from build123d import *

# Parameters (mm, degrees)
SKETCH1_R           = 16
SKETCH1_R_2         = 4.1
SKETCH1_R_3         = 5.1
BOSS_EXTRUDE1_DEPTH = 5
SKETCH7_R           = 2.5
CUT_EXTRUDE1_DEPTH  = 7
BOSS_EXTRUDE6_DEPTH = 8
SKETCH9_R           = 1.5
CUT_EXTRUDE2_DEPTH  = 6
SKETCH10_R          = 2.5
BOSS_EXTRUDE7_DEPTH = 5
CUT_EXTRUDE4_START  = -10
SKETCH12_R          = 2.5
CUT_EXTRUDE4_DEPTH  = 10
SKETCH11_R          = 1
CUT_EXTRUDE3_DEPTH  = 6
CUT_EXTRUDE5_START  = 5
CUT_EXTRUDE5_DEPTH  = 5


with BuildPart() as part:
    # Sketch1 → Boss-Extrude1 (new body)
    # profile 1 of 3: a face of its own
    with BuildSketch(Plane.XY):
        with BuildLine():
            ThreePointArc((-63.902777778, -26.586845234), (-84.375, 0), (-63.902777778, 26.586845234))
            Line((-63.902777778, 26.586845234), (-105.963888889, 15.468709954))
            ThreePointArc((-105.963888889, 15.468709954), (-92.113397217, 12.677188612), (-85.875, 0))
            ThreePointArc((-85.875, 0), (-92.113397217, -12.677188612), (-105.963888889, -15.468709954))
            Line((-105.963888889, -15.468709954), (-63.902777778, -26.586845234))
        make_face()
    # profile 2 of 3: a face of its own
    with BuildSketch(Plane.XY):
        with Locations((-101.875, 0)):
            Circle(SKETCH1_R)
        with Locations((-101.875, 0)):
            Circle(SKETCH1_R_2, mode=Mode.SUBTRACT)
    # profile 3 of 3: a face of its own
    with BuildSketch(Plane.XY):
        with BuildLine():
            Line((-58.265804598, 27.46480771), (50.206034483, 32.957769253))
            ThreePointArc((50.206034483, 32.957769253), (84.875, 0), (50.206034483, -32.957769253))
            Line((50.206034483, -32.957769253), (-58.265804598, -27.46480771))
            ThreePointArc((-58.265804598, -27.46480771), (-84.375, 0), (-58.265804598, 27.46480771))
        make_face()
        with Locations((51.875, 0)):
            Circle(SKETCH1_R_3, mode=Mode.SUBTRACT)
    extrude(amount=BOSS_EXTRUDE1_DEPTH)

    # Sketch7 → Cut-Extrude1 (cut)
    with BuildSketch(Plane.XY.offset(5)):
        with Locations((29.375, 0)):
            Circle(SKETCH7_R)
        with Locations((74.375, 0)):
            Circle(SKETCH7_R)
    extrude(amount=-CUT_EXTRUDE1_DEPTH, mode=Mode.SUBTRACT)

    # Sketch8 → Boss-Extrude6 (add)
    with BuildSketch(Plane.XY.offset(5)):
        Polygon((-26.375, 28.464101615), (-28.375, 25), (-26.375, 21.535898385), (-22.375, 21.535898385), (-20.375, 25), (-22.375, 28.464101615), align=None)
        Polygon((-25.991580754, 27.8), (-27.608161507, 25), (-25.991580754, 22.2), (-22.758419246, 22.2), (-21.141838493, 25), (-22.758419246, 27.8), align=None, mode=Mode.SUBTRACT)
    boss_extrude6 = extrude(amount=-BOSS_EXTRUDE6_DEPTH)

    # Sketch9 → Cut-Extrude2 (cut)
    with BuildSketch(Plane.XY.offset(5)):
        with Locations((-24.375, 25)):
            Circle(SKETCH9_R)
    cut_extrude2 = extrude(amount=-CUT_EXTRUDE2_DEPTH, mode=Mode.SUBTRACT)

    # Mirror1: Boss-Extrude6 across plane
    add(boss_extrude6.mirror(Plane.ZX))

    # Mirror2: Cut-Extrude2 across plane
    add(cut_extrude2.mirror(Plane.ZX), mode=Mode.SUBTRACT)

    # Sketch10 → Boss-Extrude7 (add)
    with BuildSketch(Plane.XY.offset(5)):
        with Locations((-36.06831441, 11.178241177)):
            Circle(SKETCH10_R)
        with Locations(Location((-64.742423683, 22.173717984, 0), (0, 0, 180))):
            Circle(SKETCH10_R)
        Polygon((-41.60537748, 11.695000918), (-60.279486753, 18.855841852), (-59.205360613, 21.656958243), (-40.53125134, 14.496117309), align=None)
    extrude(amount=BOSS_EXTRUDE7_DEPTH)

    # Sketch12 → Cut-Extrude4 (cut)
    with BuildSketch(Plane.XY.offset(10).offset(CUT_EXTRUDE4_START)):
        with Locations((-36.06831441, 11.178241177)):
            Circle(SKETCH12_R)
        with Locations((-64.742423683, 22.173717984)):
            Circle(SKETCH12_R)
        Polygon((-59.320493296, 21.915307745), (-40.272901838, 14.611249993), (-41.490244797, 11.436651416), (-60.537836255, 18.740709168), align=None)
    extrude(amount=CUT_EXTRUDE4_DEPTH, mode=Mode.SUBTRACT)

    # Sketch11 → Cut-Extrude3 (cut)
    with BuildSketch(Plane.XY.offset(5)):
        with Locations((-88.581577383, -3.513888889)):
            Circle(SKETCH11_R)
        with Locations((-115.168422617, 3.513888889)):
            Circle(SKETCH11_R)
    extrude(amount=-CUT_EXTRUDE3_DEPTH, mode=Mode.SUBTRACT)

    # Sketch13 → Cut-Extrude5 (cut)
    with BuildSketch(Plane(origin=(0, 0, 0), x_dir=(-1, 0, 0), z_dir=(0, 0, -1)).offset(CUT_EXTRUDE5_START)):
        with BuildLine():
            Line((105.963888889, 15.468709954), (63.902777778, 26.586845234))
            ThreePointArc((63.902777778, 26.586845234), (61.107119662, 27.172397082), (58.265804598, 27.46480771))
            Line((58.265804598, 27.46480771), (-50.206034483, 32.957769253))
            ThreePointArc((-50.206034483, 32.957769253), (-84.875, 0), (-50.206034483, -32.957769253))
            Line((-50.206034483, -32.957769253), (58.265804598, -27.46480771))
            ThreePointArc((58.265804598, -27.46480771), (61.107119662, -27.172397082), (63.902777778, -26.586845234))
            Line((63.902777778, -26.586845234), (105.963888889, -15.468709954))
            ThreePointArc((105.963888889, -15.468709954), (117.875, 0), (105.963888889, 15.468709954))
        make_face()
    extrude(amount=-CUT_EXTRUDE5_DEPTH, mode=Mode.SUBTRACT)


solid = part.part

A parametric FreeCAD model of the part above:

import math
import FreeCAD as App
import Part
import Sketcher

V = App.Vector
Q = App.Units.Quantity

doc = App.newDocument("Part")
body = doc.addObject("PartDesign::Body", "Body")

sketch1 = body.newObject("Sketcher::SketchObject", "Sketch")
sketch1.AttachmentSupport = (doc.getObject("XY_Plane"), [""])
sketch1.MapMode = "FlatFace"
sketch1.addGeometry([
    Part.LineSegment(V(-63.902778, 26.586845, 0), V(-105.963889, 15.46871, 0)),
    Part.ArcOfCircle(Part.Circle(V(-101.875, 0, 0), V(0, 0, 1), 16), math.radians(104.806507), math.radians(255.193493)),
    Part.LineSegment(V(-105.963889, -15.46871, 0), V(-63.902778, -26.586845, 0)),
    Part.ArcOfCircle(Part.Circle(V(-56.875, 0, 0), V(0, 0, 1), 27.5), math.radians(-104.806507), math.radians(-92.898954)),
    Part.LineSegment(V(-58.265805, -27.464808, 0), V(50.206034, -32.957769, 0)),
    Part.ArcOfCircle(Part.Circle(V(51.875, 0, 0), V(0, 0, 1), 33), math.radians(-92.898954), math.radians(92.898954)),
    Part.LineSegment(V(50.206034, 32.957769, 0), V(-58.265805, 27.464808, 0)),
    Part.ArcOfCircle(Part.Circle(V(-56.875, 0, 0), V(0, 0, 1), 27.5), math.radians(92.898954), math.radians(104.806507)),
    Part.Circle(V(51.875, 0, 0), V(0, 0, 1), 5.1),
    Part.Circle(V(-101.875, 0, 0), V(0, 0, 1), 4.1),
], False)
sketch1.addConstraint([
    Sketcher.Constraint("Tangent", 0, 2, 1, 1),
    Sketcher.Constraint("Tangent", 1, 2, 2, 1),
    Sketcher.Constraint("Tangent", 2, 2, 3, 1),
    Sketcher.Constraint("Tangent", 3, 2, 4, 1),
    Sketcher.Constraint("Tangent", 4, 2, 5, 1),
    Sketcher.Constraint("Tangent", 5, 2, 6, 1),
    Sketcher.Constraint("Tangent", 6, 2, 7, 1),
    Sketcher.Constraint("Tangent", 7, 2, 0, 1),
    Sketcher.Constraint("Coincident", 7, 3, 3, 3),
    Sketcher.Constraint("Coincident", 8, 3, 5, 3),
    Sketcher.Constraint("Coincident", 9, 3, 1, 3),
    Sketcher.Constraint("Equal", 3, 7),
    Sketcher.Constraint("Symmetric", 0, 2, 1, 2, -1),
    Sketcher.Constraint("PointOnObject", 5, 3, -1),
    Sketcher.Constraint("Radius", 1, 16.0),
    Sketcher.Constraint("Radius", 5, 33.0),
    Sketcher.Constraint("Diameter", 8, 10.2),
    Sketcher.Constraint("Diameter", 9, 8.2),
    Sketcher.Constraint("Radius", 3, 27.5),
    Sketcher.Constraint("DistanceX", 1, 3, 3, 3, 45.0),
    Sketcher.Constraint("DistanceX", 3, 3, 5, 3, 108.75),
    Sketcher.Constraint("DistanceX", 1, 3, -1, 1, 101.875),
])
pad1 = body.newObject("PartDesign::Pad", "Pad")
pad1.Profile = sketch1
pad1.Length = 5

sketch2 = body.newObject("Sketcher::SketchObject", "Sketch001")
sketch2.AttachmentSupport = (doc.getObject("XY_Plane"), [""])
sketch2.MapMode = "FlatFace"
sketch2.AttachmentOffset = App.Placement(V(0, 0, 5), App.Rotation())
sketch2.addGeometry([
    Part.Circle(V(29.375, 0, 0), V(0, 0, 1), 2.5),
    Part.Circle(V(74.375, 0, 0), V(0, 0, 1), 2.5),
], False)
sketch2.addConstraint([
    Sketcher.Constraint("Equal", 0, 1),
    Sketcher.Constraint("PointOnObject", 0, 3, -1),
    Sketcher.Constraint("PointOnObject", 1, 3, -1),
    Sketcher.Constraint("Diameter", 0, 5.0),
    Sketcher.Constraint("DistanceX", 0, 3, 1, 3, 45.0),
    Sketcher.Constraint("DistanceX", -1, 1, 0, 3, 29.375),
])
pocket1 = body.newObject("PartDesign::Pocket", "Pocket")
pocket1.Profile = sketch2
pocket1.Length = 7

sketch3 = body.newObject("Sketcher::SketchObject", "Sketch002")
sketch3.AttachmentSupport = (doc.getObject("XY_Plane"), [""])
sketch3.MapMode = "FlatFace"
sketch3.AttachmentOffset = App.Placement(V(0, 0, 5), App.Rotation())
sketch3.addGeometry([
    Part.LineSegment(V(-26.375, 28.464102, 0), V(-28.375, 25, 0)),
    Part.LineSegment(V(-28.375, 25, 0), V(-26.375, 21.535898, 0)),
    Part.LineSegment(V(-26.375, 21.535898, 0), V(-22.375, 21.535898, 0)),
    Part.LineSegment(V(-22.375, 21.535898, 0), V(-20.375, 25, 0)),
    Part.LineSegment(V(-20.375, 25, 0), V(-22.375, 28.464102, 0)),
    Part.LineSegment(V(-22.375, 28.464102, 0), V(-26.375, 28.464102, 0)),
    Part.LineSegment(V(-27.608162, 25, 0), V(-25.991581, 27.8, 0)),
    Part.LineSegment(V(-25.991581, 27.8, 0), V(-22.758419, 27.8, 0)),
    Part.LineSegment(V(-22.758419, 27.8, 0), V(-21.141838, 25, 0)),
    Part.LineSegment(V(-21.141838, 25, 0), V(-22.758419, 22.2, 0)),
    Part.LineSegment(V(-22.758419, 22.2, 0), V(-25.991581, 22.2, 0)),
    Part.LineSegment(V(-25.991581, 22.2, 0), V(-27.608162, 25, 0)),
], False)
sketch3.addConstraint([
    Sketcher.Constraint("Coincident", 0, 2, 1, 1),
    Sketcher.Constraint("Coincident", 1, 2, 2, 1),
    Sketcher.Constraint("Coincident", 2, 2, 3, 1),
    Sketcher.Constraint("Coincident", 3, 2, 4, 1),
    Sketcher.Constraint("Coincident", 4, 2, 5, 1),
    Sketcher.Constraint("Coincident", 5, 2, 0, 1),
    Sketcher.Constraint("Coincident", 6, 2, 7, 1),
    Sketcher.Constraint("Coincident", 7, 2, 8, 1),
    Sketcher.Constraint("Coincident", 8, 2, 9, 1),
    Sketcher.Constraint("Coincident", 9, 2, 10, 1),
    Sketcher.Constraint("Coincident", 10, 2, 11, 1),
    Sketcher.Constraint("Coincident", 11, 2, 6, 1),
    Sketcher.Constraint("Horizontal", 2),
    Sketcher.Constraint("Horizontal", 5),
    Sketcher.Constraint("Horizontal", 7),
    Sketcher.Constraint("Horizontal", 10),
    Sketcher.Constraint("Parallel", 0, 3),
    Sketcher.Constraint("Parallel", 1, 4),
    Sketcher.Constraint("Parallel", 3, 6),
    Sketcher.Constraint("Parallel", 4, 8),
    Sketcher.Constraint("Parallel", 6, 9),
    Sketcher.Constraint("Parallel", 8, 11),
    Sketcher.Constraint("Horizontal", 0, 2, 3, 2),
    Sketcher.Constraint("Horizontal", 3, 2, 8, 2),
    Sketcher.Constraint("Horizontal", 8, 2, 11, 2),
    Sketcher.Constraint("Vertical", 2, 2, 4, 2),
    Sketcher.Constraint("Vertical", 1, 2, 5, 2),
    Sketcher.Constraint("Vertical", 7, 2, 9, 2),
    Sketcher.Constraint("DistanceX", 2, 1, 2, 2, 4.0),
    Sketcher.Constraint("Angle", 0, Q("-120 deg")),
    Sketcher.Constraint("Distance", 0, 4.0),
    Sketcher.Constraint("DistanceY", -1, 1, 0, 2, 25.0),
    Sketcher.Constraint("DistanceY", -1, 1, 6, 2, 27.8),
    Sketcher.Constraint("DistanceX", 0, 2, -1, 1, 28.375),
    Sketcher.Constraint("DistanceX", 7, 1, 7, 2, 3.233162),
    Sketcher.Constraint("DistanceX", 6, 2, -1, 1, 25.991581),
])
pad2 = body.newObject("PartDesign::Pad", "Pad001")
pad2.Profile = sketch3
pad2.Length = 8
pad2.Reversed = True

sketch4 = body.newObject("Sketcher::SketchObject", "Sketch003")
sketch4.AttachmentSupport = (doc.getObject("XY_Plane"), [""])
sketch4.MapMode = "FlatFace"
sketch4.AttachmentOffset = App.Placement(V(0, 0, 5), App.Rotation())
sketch4.addGeometry(Part.Circle(V(-24.375, 25, 0), V(0, 0, 1), 1.5), False)
sketch4.addConstraint([
    Sketcher.Constraint("Diameter", 0, 3.0),
    Sketcher.Constraint("DistanceY", -1, 1, 0, 3, 25.0),
    Sketcher.Constraint("DistanceX", 0, 3, -1, 1, 24.375),
])
pocket2 = body.newObject("PartDesign::Pocket", "Pocket001")
pocket2.Profile = sketch4
pocket2.Length = 6
doc.recompute()

mirrored = body.newObject("PartDesign::Mirrored", "Mirrored")
mirrored.Originals = [pad2]
mirrored.MirrorPlane = (doc.getObject("XZ_Plane"), [""])
body.Tip = mirrored
doc.recompute()

mirrored2 = body.newObject("PartDesign::Mirrored", "Mirrored001")
mirrored2.Originals = [pocket2]
mirrored2.MirrorPlane = (doc.getObject("XZ_Plane"), [""])
body.Tip = mirrored2

sketch5 = body.newObject("Sketcher::SketchObject", "Sketch004")
sketch5.AttachmentSupport = (doc.getObject("XY_Plane"), [""])
sketch5.MapMode = "FlatFace"
sketch5.AttachmentOffset = App.Placement(V(0, 0, 5), App.Rotation())
sketch5.addGeometry([
    Part.Circle(V(-36.068314, 11.178241, 0), V(0, 0, 1), 2.5),
    Part.Circle(V(-64.742424, 22.173718, 0), V(0, 0, 1), 2.5),
    Part.LineSegment(V(-60.279487, 18.855842, 0), V(-41.605377, 11.695001, 0)),
    Part.LineSegment(V(-41.605377, 11.695001, 0), V(-40.531251, 14.496117, 0)),
    Part.LineSegment(V(-40.531251, 14.496117, 0), V(-59.205361, 21.656958, 0)),
    Part.LineSegment(V(-59.205361, 21.656958, 0), V(-60.279487, 18.855842, 0)),
], False)
sketch5.addConstraint([
    Sketcher.Constraint("Coincident", 2, 2, 3, 1),
    Sketcher.Constraint("Coincident", 3, 2, 4, 1),
    Sketcher.Constraint("Coincident", 4, 2, 5, 1),
    Sketcher.Constraint("Coincident", 5, 2, 2, 1),
    Sketcher.Constraint("Equal", 0, 1),
    Sketcher.Constraint("Perpendicular", 2, 3),
    Sketcher.Constraint("Perpendicular", 3, 4),
    Sketcher.Constraint("Perpendicular", 4, 5),
    Sketcher.Constraint("Diameter", 0, 5.0),
    Sketcher.Constraint("Distance", 2, 20.0),
    Sketcher.Constraint("Distance", 3, 3.0),
    Sketcher.Constraint("Angle", 2, Q("-20.98 deg")),
    Sketcher.Constraint("DistanceY", -1, 1, 2, 2, 11.695001),
    Sketcher.Constraint("DistanceY", 3, 2, 1, 3, 7.677601),
    Sketcher.Constraint("DistanceY", 0, 3, 5, 2, 7.677601),
    Sketcher.Constraint("DistanceX", 3, 2, -1, 1, 40.531251),
    Sketcher.Constraint("DistanceX", 1, 3, 0, 3, 28.674109),
    Sketcher.Constraint("DistanceX", 0, 3, -1, 1, 36.068314),
])
pad3 = body.newObject("PartDesign::Pad", "Pad002")
pad3.Profile = sketch5
pad3.Length = 5

sketch6 = body.newObject("Sketcher::SketchObject", "Sketch005")
sketch6.AttachmentSupport = (doc.getObject("XY_Plane"), [""])
sketch6.MapMode = "FlatFace"
sketch6.addGeometry([
    Part.Circle(V(-36.068314, 11.178241, 0), V(0, 0, 1), 2.5),
    Part.Circle(V(-64.742424, 22.173718, 0), V(0, 0, 1), 2.5),
    Part.LineSegment(V(-40.272902, 14.61125, 0), V(-59.320493, 21.915308, 0)),
    Part.LineSegment(V(-59.320493, 21.915308, 0), V(-60.537836, 18.740709, 0)),
    Part.LineSegment(V(-60.537836, 18.740709, 0), V(-41.490245, 11.436651, 0)),
    Part.LineSegment(V(-41.490245, 11.436651, 0), V(-40.272902, 14.61125, 0)),
], False)
sketch6.addConstraint([
    Sketcher.Constraint("Coincident", 2, 2, 3, 1),
    Sketcher.Constraint("Coincident", 3, 2, 4, 1),
    Sketcher.Constraint("Coincident", 4, 2, 5, 1),
    Sketcher.Constraint("Coincident", 5, 2, 2, 1),
    Sketcher.Constraint("Equal", 0, 1),
    Sketcher.Constraint("Perpendicular", 2, 3),
    Sketcher.Constraint("Perpendicular", 3, 4),
    Sketcher.Constraint("Perpendicular", 4, 5),
    Sketcher.Constraint("Diameter", 0, 5.0),
    Sketcher.Constraint("Distance", 2, 20.4),
    Sketcher.Constraint("Distance", 3, 3.4),
    Sketcher.Constraint("Angle", 2, Q("159.02 deg")),
    Sketcher.Constraint("DistanceX", 5, 2, -1, 1, 40.272902),
    Sketcher.Constraint("DistanceY", -1, 1, 0, 3, 11.178241),
    Sketcher.Constraint("DistanceY", -1, 1, 3, 2, 18.740709),
    Sketcher.Constraint("DistanceX", 1, 3, 0, 3, 28.674109),
    Sketcher.Constraint("DistanceX", 1, 3, 2, 2, 5.42193),
    Sketcher.Constraint("DistanceY", 2, 2, 1, 3, 0.25841),
])
pocket3 = body.newObject("PartDesign::Pocket", "Pocket002")
pocket3.Profile = sketch6
pocket3.Length = 10
pocket3.Reversed = True

sketch7 = body.newObject("Sketcher::SketchObject", "Sketch006")
sketch7.AttachmentSupport = (doc.getObject("XY_Plane"), [""])
sketch7.MapMode = "FlatFace"
sketch7.AttachmentOffset = App.Placement(V(0, 0, 5), App.Rotation())
sketch7.addGeometry([
    Part.Circle(V(-88.581577, -3.513889, 0), V(0, 0, 1), 1),
    Part.Circle(V(-115.168423, 3.513889, 0), V(0, 0, 1), 1),
], False)
sketch7.addConstraint([
    Sketcher.Constraint("Equal", 0, 1),
    Sketcher.Constraint("Diameter", 0, 2.0),
    Sketcher.Constraint("DistanceY", 0, 3, -1, 1, 3.513889),
    Sketcher.Constraint("DistanceY", -1, 1, 1, 3, 3.513889),
    Sketcher.Constraint("DistanceX", 0, 3, -1, 1, 88.581577),
    Sketcher.Constraint("DistanceX", 1, 3, -1, 1, 115.168423),
])
pocket4 = body.newObject("PartDesign::Pocket", "Pocket003")
pocket4.Profile = sketch7
pocket4.Length = 6

sketch8 = body.newObject("Sketcher::SketchObject", "Sketch007")
sketch8.AttachmentSupport = (doc.getObject("XY_Plane"), [""])
sketch8.MapMode = "FlatFace"
sketch8.AttachmentOffset = App.Placement(V(0, 0, -5), App.Rotation())
sketch8.addGeometry([
    Part.LineSegment(V(-105.963889, 15.46871, 0), V(-63.902778, 26.586845, 0)),
    Part.ArcOfCircle(Part.Circle(V(-56.875, 0, 0), V(0, 0, 1), 27.5), math.radians(92.898954), math.radians(104.806507)),
    Part.LineSegment(V(-58.265805, 27.464808, 0), V(50.206034, 32.957769, 0)),
    Part.ArcOfCircle(Part.Circle(V(51.875, 0, 0), V(0, 0, 1), 33), math.radians(-92.898954), math.radians(92.898954)),
    Part.LineSegment(V(50.206034, -32.957769, 0), V(-58.265805, -27.464808, 0)),
    Part.ArcOfCircle(Part.Circle(V(-56.875, 0, 0), V(0, 0, 1), 27.5), math.radians(-104.806507), math.radians(-92.898954)),
    Part.LineSegment(V(-63.902778, -26.586845, 0), V(-105.963889, -15.46871, 0)),
    Part.ArcOfCircle(Part.Circle(V(-101.875, 0, 0), V(0, 0, 1), 16), math.radians(104.806507), math.radians(255.193493)),
], False)
sketch8.addConstraint([
    Sketcher.Constraint("Tangent", 0, 2, 1, 2),
    Sketcher.Constraint("Tangent", 1, 1, 2, 1),
    Sketcher.Constraint("Tangent", 2, 2, 3, 2),
    Sketcher.Constraint("Tangent", 3, 1, 4, 1),
    Sketcher.Constraint("Tangent", 4, 2, 5, 2),
    Sketcher.Constraint("Tangent", 5, 1, 6, 1),
    Sketcher.Constraint("Tangent", 6, 2, 7, 2),
    Sketcher.Constraint("Tangent", 7, 1, 0, 1),
    Sketcher.Constraint("Coincident", 5, 3, 1, 3),
    Sketcher.Constraint("Equal", 1, 5),
    Sketcher.Constraint("Symmetric", 2, 2, 3, 1, -1),
    Sketcher.Constraint("PointOnObject", 7, 3, -1),
    Sketcher.Constraint("Radius", 3, 33.0),
    Sketcher.Constraint("Radius", 7, 16.0),
    Sketcher.Constraint("Radius", 1, 27.5),
    Sketcher.Constraint("DistanceX", 7, 3, 1, 3, 45.0),
    Sketcher.Constraint("DistanceX", 1, 3, 3, 3, 108.75),
    Sketcher.Constraint("DistanceX", 1, 3, -1, 1, 56.875),
])
pocket5 = body.newObject("PartDesign::Pocket", "Pocket004")
pocket5.Profile = sketch8
pocket5.Length = 5
pocket5.Reversed = True

doc.recompute()
